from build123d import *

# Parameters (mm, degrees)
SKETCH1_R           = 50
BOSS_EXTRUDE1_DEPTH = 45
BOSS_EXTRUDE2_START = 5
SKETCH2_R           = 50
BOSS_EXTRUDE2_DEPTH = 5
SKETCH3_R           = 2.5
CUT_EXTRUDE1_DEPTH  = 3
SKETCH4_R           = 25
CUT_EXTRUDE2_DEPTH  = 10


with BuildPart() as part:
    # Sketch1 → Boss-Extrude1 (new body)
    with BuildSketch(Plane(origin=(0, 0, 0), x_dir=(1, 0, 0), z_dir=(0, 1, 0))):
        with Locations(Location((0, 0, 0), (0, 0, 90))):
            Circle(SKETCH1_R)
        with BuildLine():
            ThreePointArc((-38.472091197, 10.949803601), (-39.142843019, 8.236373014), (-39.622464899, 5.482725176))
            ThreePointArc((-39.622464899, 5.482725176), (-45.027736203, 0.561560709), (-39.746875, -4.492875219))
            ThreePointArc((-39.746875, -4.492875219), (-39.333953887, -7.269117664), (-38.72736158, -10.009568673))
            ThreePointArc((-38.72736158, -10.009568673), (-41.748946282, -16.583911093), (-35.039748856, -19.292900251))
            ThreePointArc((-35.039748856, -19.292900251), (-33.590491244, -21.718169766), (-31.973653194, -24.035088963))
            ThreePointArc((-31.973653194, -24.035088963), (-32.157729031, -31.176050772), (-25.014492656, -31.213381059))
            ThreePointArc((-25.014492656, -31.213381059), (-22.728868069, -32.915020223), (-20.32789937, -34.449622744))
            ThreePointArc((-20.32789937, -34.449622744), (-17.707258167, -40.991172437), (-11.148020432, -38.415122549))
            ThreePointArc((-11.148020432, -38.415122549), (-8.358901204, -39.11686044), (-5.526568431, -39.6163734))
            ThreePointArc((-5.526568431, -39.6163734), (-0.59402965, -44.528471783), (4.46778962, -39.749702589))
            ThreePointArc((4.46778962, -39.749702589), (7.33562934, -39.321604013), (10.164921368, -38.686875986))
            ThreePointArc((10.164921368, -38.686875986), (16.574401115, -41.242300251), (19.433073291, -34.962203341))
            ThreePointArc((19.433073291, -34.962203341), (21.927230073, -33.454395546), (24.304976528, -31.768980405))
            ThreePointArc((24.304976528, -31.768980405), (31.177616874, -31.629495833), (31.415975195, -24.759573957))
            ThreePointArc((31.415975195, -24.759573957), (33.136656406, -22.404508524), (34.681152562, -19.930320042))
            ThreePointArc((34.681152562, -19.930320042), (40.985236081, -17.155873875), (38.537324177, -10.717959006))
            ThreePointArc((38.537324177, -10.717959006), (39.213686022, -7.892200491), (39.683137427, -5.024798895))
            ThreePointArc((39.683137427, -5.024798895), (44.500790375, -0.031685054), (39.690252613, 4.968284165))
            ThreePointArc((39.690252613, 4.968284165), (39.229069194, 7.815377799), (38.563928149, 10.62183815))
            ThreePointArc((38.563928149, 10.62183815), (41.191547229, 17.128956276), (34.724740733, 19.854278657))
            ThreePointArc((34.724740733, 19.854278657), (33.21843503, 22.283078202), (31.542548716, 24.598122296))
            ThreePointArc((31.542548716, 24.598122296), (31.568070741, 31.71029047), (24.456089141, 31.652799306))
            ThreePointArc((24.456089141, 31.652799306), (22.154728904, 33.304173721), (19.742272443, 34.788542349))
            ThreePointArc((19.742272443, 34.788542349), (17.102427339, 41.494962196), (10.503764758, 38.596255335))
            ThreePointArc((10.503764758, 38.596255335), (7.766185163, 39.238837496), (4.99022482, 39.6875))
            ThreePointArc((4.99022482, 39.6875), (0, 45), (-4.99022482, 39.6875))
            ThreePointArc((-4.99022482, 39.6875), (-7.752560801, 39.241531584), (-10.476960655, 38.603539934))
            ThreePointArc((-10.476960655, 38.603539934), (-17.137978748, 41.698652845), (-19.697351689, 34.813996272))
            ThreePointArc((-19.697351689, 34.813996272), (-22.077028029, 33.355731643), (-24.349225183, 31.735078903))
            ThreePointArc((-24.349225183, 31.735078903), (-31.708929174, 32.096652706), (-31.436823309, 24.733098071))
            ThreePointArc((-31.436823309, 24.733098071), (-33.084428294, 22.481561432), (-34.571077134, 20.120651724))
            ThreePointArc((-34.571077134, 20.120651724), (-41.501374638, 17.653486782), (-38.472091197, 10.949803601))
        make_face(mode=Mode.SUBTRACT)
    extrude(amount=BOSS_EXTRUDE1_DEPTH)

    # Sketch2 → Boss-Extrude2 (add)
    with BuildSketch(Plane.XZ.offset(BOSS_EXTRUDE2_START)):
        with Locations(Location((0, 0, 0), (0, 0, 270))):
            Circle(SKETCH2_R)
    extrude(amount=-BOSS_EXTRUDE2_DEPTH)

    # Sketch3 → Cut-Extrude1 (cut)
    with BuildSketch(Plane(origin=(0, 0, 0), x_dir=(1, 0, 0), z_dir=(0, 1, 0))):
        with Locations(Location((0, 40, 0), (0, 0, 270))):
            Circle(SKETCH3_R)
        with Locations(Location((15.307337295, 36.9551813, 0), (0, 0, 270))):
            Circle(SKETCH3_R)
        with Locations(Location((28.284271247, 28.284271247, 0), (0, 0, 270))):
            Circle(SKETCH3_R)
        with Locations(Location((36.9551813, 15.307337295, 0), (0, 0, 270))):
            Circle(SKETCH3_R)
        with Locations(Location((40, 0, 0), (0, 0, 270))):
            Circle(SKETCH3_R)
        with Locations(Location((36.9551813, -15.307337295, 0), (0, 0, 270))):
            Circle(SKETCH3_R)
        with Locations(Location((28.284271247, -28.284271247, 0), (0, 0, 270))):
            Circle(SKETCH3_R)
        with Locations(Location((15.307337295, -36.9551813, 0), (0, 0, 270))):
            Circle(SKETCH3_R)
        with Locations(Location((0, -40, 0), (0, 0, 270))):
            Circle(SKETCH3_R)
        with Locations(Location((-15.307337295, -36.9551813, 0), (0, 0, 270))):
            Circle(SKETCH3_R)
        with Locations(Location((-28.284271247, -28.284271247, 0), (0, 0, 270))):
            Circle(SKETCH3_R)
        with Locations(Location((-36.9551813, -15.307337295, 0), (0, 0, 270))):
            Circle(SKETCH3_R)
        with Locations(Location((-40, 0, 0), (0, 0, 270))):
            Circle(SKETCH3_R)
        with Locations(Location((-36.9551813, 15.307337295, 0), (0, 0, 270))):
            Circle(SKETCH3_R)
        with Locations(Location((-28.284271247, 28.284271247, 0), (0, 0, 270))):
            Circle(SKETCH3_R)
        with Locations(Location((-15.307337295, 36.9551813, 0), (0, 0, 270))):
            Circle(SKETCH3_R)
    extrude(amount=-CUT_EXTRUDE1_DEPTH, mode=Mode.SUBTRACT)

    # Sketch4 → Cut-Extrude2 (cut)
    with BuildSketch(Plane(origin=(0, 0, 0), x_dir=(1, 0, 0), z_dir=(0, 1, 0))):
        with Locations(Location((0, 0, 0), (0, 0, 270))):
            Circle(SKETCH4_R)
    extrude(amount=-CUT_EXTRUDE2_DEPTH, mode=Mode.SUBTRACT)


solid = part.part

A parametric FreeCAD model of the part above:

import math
import FreeCAD as App
import Part
import Sketcher

V = App.Vector
Q = App.Units.Quantity

doc = App.newDocument("Part")
body = doc.addObject("PartDesign::Body", "Body")

sketch1 = body.newObject("Sketcher::SketchObject", "Sketch")
sketch1.AttachmentSupport = (doc.getObject("XZ_Plane"), [""])
sketch1.MapMode = "FlatFace"
sketch1.addGeometry([
    Part.Circle(V(0, 0, 0), V(0, 0, 1), 50),
    Part.ArcOfCircle(Part.Circle(V(0, 0, 0), V(0, 0, 1), 40), math.radians(-172.121773), math.radians(-164.112756)),
    Part.ArcOfCircle(Part.Circle(V(-36.900335, -15.696337, 0), V(0, 0, 1), 5), math.radians(108.321653), math.radians(297.765348)),
    Part.ArcOfCircle(Part.Circle(V(0, 0, 0), V(0, 0, 1), 40), math.radians(-149.800242), math.radians(-141.805901)),
    Part.ArcOfCircle(Part.Circle(V(-28.194944, -28.5397, 0), V(0, 0, 1), 5), math.radians(130.419256), math.radians(320.277067)),
    Part.ArcOfCircle(Part.Circle(V(0, 0, 0), V(0, 0, 1), 40), math.radians(-127.497776), math.radians(-119.500674)),
    Part.ArcOfCircle(Part.Circle(V(-15.23727, -37.074012, 0), V(0, 0, 1), 5), math.radians(153.127727), math.radians(342.187342)),
    Part.ArcOfCircle(Part.Circle(V(0, 0, 0), V(0, 0, 1), 40), math.radians(-105.184257), math.radians(-97.166643)),
    Part.ArcOfCircle(Part.Circle(V(0, -40, 0), V(0, 0, 1), 5), math.radians(176.416678), math.radians(363.583322)),
    Part.ArcOfCircle(Part.Circle(V(0, 0, 0), V(0, 0, 1), 40), math.radians(-82.833357), math.radians(-74.775956)),
    Part.ArcOfCircle(Part.Circle(V(15.197129, -36.87221, 0), V(0, 0, 1), 5), math.radians(-159.829859), math.radians(24.628532)),
    Part.ArcOfCircle(Part.Circle(V(0, 0, 0), V(0, 0, 1), 40), math.radians(-60.42537), math.radians(-52.309038)),
    Part.ArcOfCircle(Part.Circle(V(28.040492, -28.166819, 0), V(0, 0, 1), 5), math.radians(-135.797531), math.radians(45.539984)),
    Part.ArcOfCircle(Part.Circle(V(0, 0, 0), V(0, 0, 1), 40), math.radians(-37.948509), math.radians(-29.75927)),
    Part.ArcOfCircle(Part.Circle(V(36.574803, -15.209145, 0), V(0, 0, 1), 5), math.radians(-111.71639), math.radians(66.557724)),
    Part.ArcOfCircle(Part.Circle(V(0, 0, 0), V(0, 0, 1), 40), math.radians(-15.399396), math.radians(-7.134969)),
    Part.ArcOfCircle(Part.Circle(V(39.500792, 0.028125, 0), V(0, 0, 1), 5), math.radians(-87.828417), math.radians(87.910008)),
    Part.ArcOfCircle(Part.Circle(V(0, 0, 0), V(0, 0, 1), 40), math.radians(7.21656), math.radians(15.542255)),
    Part.ArcOfCircle(Part.Circle(V(36.373002, 15.225254, 0), V(0, 0, 1), 5), math.radians(-64.350513), math.radians(109.777585)),
    Part.ArcOfCircle(Part.Circle(V(0, 0, 0), V(0, 0, 1), 40), math.radians(29.884817), math.radians(38.242369)),
    Part.ArcOfCircle(Part.Circle(V(27.667611, 28.068617, 0), V(0, 0, 1), 5), math.radians(-41.437953), math.radians(132.262392)),
    Part.ArcOfCircle(Part.Circle(V(0, 0, 0), V(0, 0, 1), 40), math.radians(52.58207), math.radians(60.933342)),
    Part.ArcOfCircle(Part.Circle(V(14.709936, 36.602928, 0), V(0, 0, 1), 5), math.radians(-19.156223), math.radians(155.367938)),
    Part.ArcOfCircle(Part.Circle(V(0, 0, 0), V(0, 0, 1), 40), math.radians(75.278373), math.radians(83.586981)),
    Part.ArcOfCircle(Part.Circle(V(-0.527333, 39.528917, 0), V(0, 0, 1), 5), math.radians(2.530844), math.radians(178.997768)),
    Part.ArcOfCircle(Part.Circle(V(0, 0, 0), V(0, 0, 1), 40), math.radians(97.941631), math.radians(106.182662)),
    Part.ArcOfCircle(Part.Circle(V(-15.724462, 36.401127, 0), V(0, 0, 1), 5), math.radians(23.753286), math.radians(202.973216)),
    Part.ArcOfCircle(Part.Circle(V(0, 0, 0), V(0, 0, 1), 40), math.radians(120.543839), math.radians(128.708785)),
    Part.ArcOfCircle(Part.Circle(V(-28.567825, 27.695736, 0), V(0, 0, 1), 5), math.radians(44.710828), math.radians(227.065207)),
    Part.ArcOfCircle(Part.Circle(V(0, 0, 0), V(0, 0, 1), 40), math.radians(143.06725), math.radians(151.162801)),
    Part.ArcOfCircle(Part.Circle(V(-37.102137, 14.738061, 0), V(0, 0, 1), 5), math.radians(65.639433), math.radians(251.0317)),
    Part.ArcOfCircle(Part.Circle(V(0, 0, 0), V(0, 0, 1), 40), math.radians(165.508332), math.radians(173.550821)),
    Part.ArcOfCircle(Part.Circle(V(-40.028125, -0.499208, 0), V(0, 0, 1), 5), math.radians(86.77541), math.radians(274.653637)),
], False)
sketch1.addConstraint([
    Sketcher.Constraint("Coincident", 1, 2, 2, 1),
    Sketcher.Constraint("Coincident", 2, 2, 3, 1),
    Sketcher.Constraint("Coincident", 3, 2, 4, 1),
    Sketcher.Constraint("Coincident", 4, 2, 5, 1),
    Sketcher.Constraint("Coincident", 5, 2, 6, 1),
    Sketcher.Constraint("Coincident", 6, 2, 7, 1),
    Sketcher.Constraint("Coincident", 7, 2, 8, 1),
    Sketcher.Constraint("Coincident", 8, 2, 9, 1),
    Sketcher.Constraint("Coincident", 9, 2, 10, 1),
    Sketcher.Constraint("Coincident", 10, 2, 11, 1),
    Sketcher.Constraint("Coincident", 11, 2, 12, 1),
    Sketcher.Constraint("Coincident", 12, 2, 13, 1),
    Sketcher.Constraint("Coincident", 13, 2, 14, 1),
    Sketcher.Constraint("Coincident", 14, 2, 15, 1),
    Sketcher.Constraint("Coincident", 15, 2, 16, 1),
    Sketcher.Constraint("Coincident", 16, 2, 17, 1),
    Sketcher.Constraint("Coincident", 17, 2, 18, 1),
    Sketcher.Constraint("Coincident", 18, 2, 19, 1),
    Sketcher.Constraint("Coincident", 19, 2, 20, 1),
    Sketcher.Constraint("Coincident", 20, 2, 21, 1),
    Sketcher.Constraint("Coincident", 21, 2, 22, 1),
    Sketcher.Constraint("Coincident", 22, 2, 23, 1),
    Sketcher.Constraint("Coincident", 23, 2, 24, 1),
    Sketcher.Constraint("Coincident", 24, 2, 25, 1),
    Sketcher.Constraint("Coincident", 25, 2, 26, 1),
    Sketcher.Constraint("Coincident", 26, 2, 27, 1),
    Sketcher.Constraint("Coincident", 27, 2, 28, 1),
    Sketcher.Constraint("Coincident", 28, 2, 29, 1),
    Sketcher.Constraint("Coincident", 29, 2, 30, 1),
    Sketcher.Constraint("Coincident", 30, 2, 31, 1),
    Sketcher.Constraint("Coincident", 31, 2, 32, 1),
    Sketcher.Constraint("Coincident", 32, 2, 1, 1),
    Sketcher.Constraint("Coincident", 0, 3, -1, 1),
    Sketcher.Constraint("Coincident", 1, 3, -1, 1),
    Sketcher.Constraint("Coincident", 3, 3, -1, 1),
    Sketcher.Constraint("Coincident", 5, 3, -1, 1),
    Sketcher.Constraint("Coincident", 7, 3, -1, 1),
    Sketcher.Constraint("Coincident", 9, 3, -1, 1),
    Sketcher.Constraint("Coincident", 11, 3, -1, 1),
    Sketcher.Constraint("Coincident", 13, 3, -1, 1),
    Sketcher.Constraint("Coincident", 15, 3, -1, 1),
    Sketcher.Constraint("Coincident", 17, 3, -1, 1),
    Sketcher.Constraint("Coincident", 19, 3, -1, 1),
    Sketcher.Constraint("Coincident", 21, 3, -1, 1),
    Sketcher.Constraint("Coincident", 23, 3, -1, 1),
    Sketcher.Constraint("Coincident", 25, 3, -1, 1),
    Sketcher.Constraint("Coincident", 27, 3, -1, 1),
    Sketcher.Constraint("Coincident", 29, 3, -1, 1),
    Sketcher.Constraint("Coincident", 31, 3, -1, 1),
    Sketcher.Constraint("Equal", 1, 3),
    Sketcher.Constraint("Equal", 2, 4),
    Sketcher.Constraint("Equal", 3, 5),
    Sketcher.Constraint("Equal", 4, 6),
    Sketcher.Constraint("Equal", 5, 7),
    Sketcher.Constraint("Equal", 6, 8),
    Sketcher.Constraint("Equal", 7, 9),
    Sketcher.Constraint("Equal", 8, 10),
    Sketcher.Constraint("Equal", 9, 11),
    Sketcher.Constraint("Equal", 10, 12),
    Sketcher.Constraint("Equal", 11, 13),
    Sketcher.Constraint("Equal", 12, 14),
    Sketcher.Constraint("Equal", 13, 15),
    Sketcher.Constraint("Equal", 14, 16),
    Sketcher.Constraint("Equal", 15, 17),
    Sketcher.Constraint("Equal", 16, 18),
    Sketcher.Constraint("Equal", 17, 19),
    Sketcher.Constraint("Equal", 18, 20),
    Sketcher.Constraint("Equal", 19, 21),
    Sketcher.Constraint("Equal", 20, 22),
    Sketcher.Constraint("Equal", 21, 23),
    Sketcher.Constraint("Equal", 22, 24),
    Sketcher.Constraint("Equal", 23, 25),
    Sketcher.Constraint("Equal", 24, 26),
    Sketcher.Constraint("Equal", 25, 27),
    Sketcher.Constraint("Equal", 26, 28),
    Sketcher.Constraint("Equal", 27, 29),
    Sketcher.Constraint("Equal", 28, 30),
    Sketcher.Constraint("Equal", 29, 31),
    Sketcher.Constraint("Equal", 30, 32),
    Sketcher.Constraint("PointOnObject", 8, 3, -2),
    Sketcher.Constraint("Diameter", 0, Q("100 mm")),
    Sketcher.Constraint("Radius", 1, Q("40 mm")),
    Sketcher.Constraint("Radius", 2, Q("5 mm")),
    Sketcher.Constraint("DistanceY", 8, 3, -1, 1, Q("40 mm")),
    Sketcher.Constraint("DistanceX", -1, 1, 18, 3, Q("36.373002 mm")),
    Sketcher.Constraint("DistanceY", 4, 3, -1, 1, Q("28.5397 mm")),
    Sketcher.Constraint("DistanceY", 3, 2, -1, 1, Q("24.733098 mm")),
    Sketcher.Constraint("DistanceY", 11, 2, -1, 1, Q("31.652799 mm")),
    Sketcher.Constraint("DistanceY", -1, 1, 16, 2, Q("5.024799 mm")),
    Sketcher.Constraint("DistanceX", 26, 2, -1, 1, Q("20.327899 mm")),
    Sketcher.Constraint("DistanceY", -1, 1, 29, 2, Q("19.2929 mm")),
    Sketcher.Constraint("DistanceX", 6, 3, -1, 1, Q("15.23727 mm")),
    Sketcher.Constraint("DistanceY", 6, 3, -1, 1, Q("37.074012 mm")),
    Sketcher.Constraint("DistanceX", -1, 1, 10, 3, Q("15.197129 mm")),
    Sketcher.Constraint("DistanceY", 10, 3, -1, 1, Q("36.87221 mm")),
    Sketcher.Constraint("DistanceX", -1, 1, 12, 3, Q("28.040492 mm")),
    Sketcher.Constraint("DistanceX", -1, 1, 16, 3, Q("39.500792 mm")),
    Sketcher.Constraint("DistanceX", -1, 1, 20, 3, Q("27.667611 mm")),
    Sketcher.Constraint("DistanceY", -1, 1, 22, 3, Q("36.602928 mm")),
    Sketcher.Constraint("DistanceY", -1, 1, 30, 3, Q("14.738061 mm")),
    Sketcher.Constraint("DistanceY", 32, 3, -1, 1, Q("0.499208 mm")),
    Sketcher.Constraint("DistanceX", 1, 2, -1, 1, Q("38.472091 mm")),
    Sketcher.Constraint("DistanceY", 2, 2, -1, 1, Q("20.120652 mm")),
    Sketcher.Constraint("DistanceX", -1, 1, 13, 2, Q("34.724741 mm")),
    Sketcher.Constraint("DistanceY", 14, 2, -1, 1, Q("10.621838 mm")),
    Sketcher.Constraint("DistanceY", -1, 1, 17, 2, Q("10.717959 mm")),
    Sketcher.Constraint("DistanceY", -1, 1, 20, 2, Q("31.76898 mm")),
    Sketcher.Constraint("DistanceX", -1, 1, 22, 2, Q("10.164921 mm")),
    Sketcher.Constraint("DistanceX", -1, 1, 23, 2, Q("4.46779 mm")),
    Sketcher.Constraint("DistanceX", 24, 2, -1, 1, Q("5.526568 mm")),
    Sketcher.Constraint("DistanceY", -1, 1, 27, 2, Q("31.213381 mm")),
    Sketcher.Constraint("DistanceY", -1, 1, 28, 2, Q("24.035089 mm")),
    Sketcher.Constraint("DistanceX", 26, 3, -1, 1, Q("15.724462 mm")),
    Sketcher.Constraint("DistanceX", 32, 3, -1, 1, Q("40.028125 mm")),
])
pad1 = body.newObject("PartDesign::Pad", "Pad")
pad1.Profile = sketch1
pad1.Length = 45
pad1.Reversed = True

sketch2 = body.newObject("Sketcher::SketchObject", "Sketch001")
sketch2.AttachmentSupport = (doc.getObject("XZ_Plane"), [""])
sketch2.MapMode = "FlatFace"
sketch2.AttachmentOffset = App.Placement(V(0, 0, 5), App.Rotation())
sketch2.addGeometry(Part.Circle(V(0, 0, 0), V(0, 0, 1), 50), False)
sketch2.addConstraint([
    Sketcher.Constraint("Coincident", 0, 3, -1, 1),
    Sketcher.Constraint("Diameter", 0, Q("100 mm")),
])
pad2 = body.newObject("PartDesign::Pad", "Pad001")
pad2.Profile = sketch2
pad2.Length = 5
pad2.Reversed = True

sketch3 = body.newObject("Sketcher::SketchObject", "Sketch002")
sketch3.AttachmentSupport = (doc.getObject("XZ_Plane"), [""])
sketch3.MapMode = "FlatFace"
sketch3.addGeometry([
    Part.Circle(V(0, -40, 0), V(0, 0, 1), 2.5),
    Part.Circle(V(15.3, -37, 0), V(0, 0, 1), 2.5),
    Part.Circle(V(28.3, -28.3, 0), V(0, 0, 1), 2.5),
    Part.Circle(V(37, -15.3, 0), V(0, 0, 1), 2.5),
    Part.Circle(V(40, 0, 0), V(0, 0, 1), 2.5),
    Part.Circle(V(37, 15.3, 0), V(0, 0, 1), 2.5),
    Part.Circle(V(28.3, 28.3, 0), V(0, 0, 1), 2.5),
    Part.Circle(V(15.3, 37, 0), V(0, 0, 1), 2.5),
    Part.Circle(V(0, 40, 0), V(0, 0, 1), 2.5),
    Part.Circle(V(-15.3, 37, 0), V(0, 0, 1), 2.5),
    Part.Circle(V(-28.3, 28.3, 0), V(0, 0, 1), 2.5),
    Part.Circle(V(-37, 15.3, 0), V(0, 0, 1), 2.5),
    Part.Circle(V(-40, 0, 0), V(0, 0, 1), 2.5),
    Part.Circle(V(-37, -15.3, 0), V(0, 0, 1), 2.5),
    Part.Circle(V(-28.3, -28.3, 0), V(0, 0, 1), 2.5),
    Part.Circle(V(-15.3, -37, 0), V(0, 0, 1), 2.5),
], False)
sketch3.addConstraint([
    Sketcher.Constraint("Equal", 0, 1),
    Sketcher.Constraint("Equal", 1, 2),
    Sketcher.Constraint("Equal", 2, 3),
    Sketcher.Constraint("Equal", 3, 4),
    Sketcher.Constraint("Equal", 4, 5),
    Sketcher.Constraint("Equal", 5, 6),
    Sketcher.Constraint("Equal", 6, 7),
    Sketcher.Constraint("Equal", 7, 8),
    Sketcher.Constraint("Equal", 8, 9),
    Sketcher.Constraint("Equal", 9, 10),
    Sketcher.Constraint("Equal", 10, 11),
    Sketcher.Constraint("Equal", 11, 12),
    Sketcher.Constraint("Equal", 12, 13),
    Sketcher.Constraint("Equal", 13, 14),
    Sketcher.Constraint("Equal", 14, 15),
    Sketcher.Constraint("Symmetric", 0, 3, 8, 3, -1, 1),
    Sketcher.Constraint("Symmetric", 1, 3, 9, 3, -1, 1),
    Sketcher.Constraint("Symmetric", 2, 3, 10, 3, -1, 1),
    Sketcher.Constraint("Symmetric", 3, 3, 11, 3, -1, 1),
    Sketcher.Constraint("Symmetric", 4, 3, 12, 3, -1, 1),
    Sketcher.Constraint("Symmetric", 5, 3, 13, 3, -1, 1),
    Sketcher.Constraint("Symmetric", 6, 3, 14, 3, -1, 1),
    Sketcher.Constraint("Symmetric", 7, 3, 15, 3, -1, 1),
    Sketcher.Constraint("Symmetric", 7, 3, 9, 3, -2),
    Sketcher.Constraint("Symmetric", 6, 3, 10, 3, -2),
    Sketcher.Constraint("Symmetric", 5, 3, 11, 3, -2),
    Sketcher.Constraint("PointOnObject", 0, 3, -2),
    Sketcher.Constraint("PointOnObject", 4, 3, -1),
    Sketcher.Constraint("Diameter", 0, Q("5 mm")),
    Sketcher.Constraint("DistanceY", 0, 3, -1, 1, Q("40 mm")),
    Sketcher.Constraint("DistanceX", -1, 1, 4, 3, Q("40 mm")),
    Sketcher.Constraint("DistanceY", 1, 3, -1, 1, Q("36.955181 mm")),
    Sketcher.Constraint("DistanceX", -1, 1, 2, 3, Q("28.284271 mm")),
    Sketcher.Constraint("DistanceY", 2, 3, -1, 1, Q("28.284271 mm")),
    Sketcher.Constraint("DistanceX", -1, 1, 3, 3, Q("36.955181 mm")),
    Sketcher.Constraint("DistanceY", 2, 3, 5, 3, Q("43.591609 mm")),
    Sketcher.Constraint("DistanceX", 9, 3, 6, 3, Q("43.591609 mm")),
])
pocket1 = body.newObject("PartDesign::Pocket", "Pocket")
pocket1.Profile = sketch3
pocket1.Length = 3
pocket1.Reversed = True

sketch4 = body.newObject("Sketcher::SketchObject", "Sketch003")
sketch4.AttachmentSupport = (doc.getObject("XZ_Plane"), [""])
sketch4.MapMode = "FlatFace"
sketch4.addGeometry(Part.Circle(V(0, 0, 0), V(0, 0, 1), 25), False)
sketch4.addConstraint([
    Sketcher.Constraint("Coincident", 0, 3, -1, 1),
    Sketcher.Constraint("Diameter", 0, Q("50 mm")),
])
pocket2 = body.newObject("PartDesign::Pocket", "Pocket001")
pocket2.Profile = sketch4
pocket2.Length = 10
pocket2.Reversed = True

doc.recompute()
